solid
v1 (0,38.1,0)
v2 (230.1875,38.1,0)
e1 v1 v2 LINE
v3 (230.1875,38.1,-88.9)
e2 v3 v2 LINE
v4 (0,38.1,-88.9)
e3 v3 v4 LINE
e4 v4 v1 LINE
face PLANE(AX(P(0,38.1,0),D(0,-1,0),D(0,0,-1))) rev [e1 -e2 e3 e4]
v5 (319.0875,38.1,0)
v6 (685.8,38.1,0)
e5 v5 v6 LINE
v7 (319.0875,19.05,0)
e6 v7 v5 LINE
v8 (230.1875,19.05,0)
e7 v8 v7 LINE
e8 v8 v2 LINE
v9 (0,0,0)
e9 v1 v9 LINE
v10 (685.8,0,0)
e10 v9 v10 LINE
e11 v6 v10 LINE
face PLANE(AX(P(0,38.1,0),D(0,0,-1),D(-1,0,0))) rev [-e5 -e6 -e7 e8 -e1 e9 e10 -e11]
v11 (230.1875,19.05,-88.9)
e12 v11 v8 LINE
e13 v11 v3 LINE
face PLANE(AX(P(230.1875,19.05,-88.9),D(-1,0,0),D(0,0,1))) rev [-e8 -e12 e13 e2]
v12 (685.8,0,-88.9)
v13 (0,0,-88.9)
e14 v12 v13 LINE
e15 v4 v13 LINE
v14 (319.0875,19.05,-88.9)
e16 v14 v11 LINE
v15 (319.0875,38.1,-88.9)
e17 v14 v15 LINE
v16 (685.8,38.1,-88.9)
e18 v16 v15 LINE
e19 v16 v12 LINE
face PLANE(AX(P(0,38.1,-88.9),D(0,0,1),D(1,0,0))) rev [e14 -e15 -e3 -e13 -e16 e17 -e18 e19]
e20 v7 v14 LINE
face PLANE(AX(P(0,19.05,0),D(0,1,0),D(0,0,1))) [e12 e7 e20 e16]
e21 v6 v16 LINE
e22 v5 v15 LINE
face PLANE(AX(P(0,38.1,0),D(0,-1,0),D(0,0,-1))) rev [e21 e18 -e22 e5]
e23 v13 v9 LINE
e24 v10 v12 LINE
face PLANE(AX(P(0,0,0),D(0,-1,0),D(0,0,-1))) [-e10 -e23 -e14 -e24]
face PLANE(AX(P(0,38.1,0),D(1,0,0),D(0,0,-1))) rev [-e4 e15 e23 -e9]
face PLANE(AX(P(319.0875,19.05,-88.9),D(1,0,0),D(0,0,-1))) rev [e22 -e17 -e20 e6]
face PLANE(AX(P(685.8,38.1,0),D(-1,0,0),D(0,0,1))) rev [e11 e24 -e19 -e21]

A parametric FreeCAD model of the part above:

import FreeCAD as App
import Part
import Sketcher
Q = App.Units.Quantity

doc = App.newDocument("Part")
body = doc.addObject("PartDesign::Body", "Body")

# Sketch on XZ plane
sketch1 = body.newObject("Sketcher::SketchObject", "Sketch")
sketch1.AttachmentSupport = (doc.getObject("XZ_Plane"), [""])
sketch1.MapMode = "FlatFace"
sketch1.addGeometry(Part.LineSegment(App.Vector(0, -89, 0), App.Vector(0, 0, 0)), False)
sketch1.addGeometry(Part.LineSegment(App.Vector(0, 0, 0), App.Vector(686, 0, 0)), False)
sketch1.addGeometry(Part.LineSegment(App.Vector(686, 0, 0), App.Vector(686, -89, 0)), False)
sketch1.addGeometry(Part.LineSegment(App.Vector(686, -89, 0), App.Vector(0, -89, 0)), False)
sketch1.addConstraint(Sketcher.Constraint("Coincident", 0, 2, 1, 1))
sketch1.addConstraint(Sketcher.Constraint("Coincident", 1, 2, 2, 1))
sketch1.addConstraint(Sketcher.Constraint("Coincident", 2, 2, 3, 1))
sketch1.addConstraint(Sketcher.Constraint("Coincident", 3, 2, 0, 1))
sketch1.addConstraint(Sketcher.Constraint("Vertical", 0))
sketch1.addConstraint(Sketcher.Constraint("Horizontal", 1))
sketch1.addConstraint(Sketcher.Constraint("Vertical", 2))
sketch1.addConstraint(Sketcher.Constraint("Horizontal", 3))
sketch1.addConstraint(Sketcher.Constraint("Coincident", 0, 2, -1, 1))
sketch1.addConstraint(Sketcher.Constraint("DistanceX", 1, 1, 1, 2, Q("27 in")))
sketch1.addConstraint(Sketcher.Constraint("DistanceY", 0, 1, 0, 2, Q("3.5 in")))
pad1 = body.newObject("PartDesign::Pad", "Pad")
pad1.Profile = sketch1
pad1.Length = Q("1.5 in")
pad1.Reversed = True

# Sketch on XZ plane
sketch2 = body.newObject("Sketcher::SketchObject", "Sketch001")
sketch2.AttachmentSupport = (doc.getObject("XZ_Plane"), [""])
sketch2.MapMode = "FlatFace"
sketch2.AttachmentOffset = App.Placement(App.Vector(0, 0, -1.5 * 25.4), App.Rotation())
sketch2.addGeometry(Part.LineSegment(App.Vector(230, -89, 0), App.Vector(230, 0, 0)), False)
sketch2.addGeometry(Part.LineSegment(App.Vector(230, 0, 0), App.Vector(319, 0, 0)), False)
sketch2.addGeometry(Part.LineSegment(App.Vector(319, 0, 0), App.Vector(319, -89, 0)), False)
sketch2.addGeometry(Part.LineSegment(App.Vector(319, -89, 0), App.Vector(230, -89, 0)), False)
sketch2.addConstraint(Sketcher.Constraint("Coincident", 0, 2, 1, 1))
sketch2.addConstraint(Sketcher.Constraint("Coincident", 1, 2, 2, 1))
sketch2.addConstraint(Sketcher.Constraint("Coincident", 2, 2, 3, 1))
sketch2.addConstraint(Sketcher.Constraint("Coincident", 3, 2, 0, 1))
sketch2.addConstraint(Sketcher.Constraint("Vertical", 0))
sketch2.addConstraint(Sketcher.Constraint("Horizontal", 1))
sketch2.addConstraint(Sketcher.Constraint("Vertical", 2))
sketch2.addConstraint(Sketcher.Constraint("Horizontal", 3))
sketch2.addConstraint(Sketcher.Constraint("PointOnObject", 0, 2, -1))
sketch2.addConstraint(Sketcher.Constraint("Equal", 3, 0))
sketch2.addConstraint(Sketcher.Constraint("DistanceX", 1, 1, 1, 2, Q("3.5 in")))
sketch2.addConstraint(Sketcher.Constraint("DistanceX", -1, 1, 0, 2, Q("9.0625 in")))
pocket1 = body.newObject("PartDesign::Pocket", "Pocket")
pocket1.Profile = sketch2
pocket1.Length = Q("0.75 in")
pocket1.Reversed = True

doc.recompute()
